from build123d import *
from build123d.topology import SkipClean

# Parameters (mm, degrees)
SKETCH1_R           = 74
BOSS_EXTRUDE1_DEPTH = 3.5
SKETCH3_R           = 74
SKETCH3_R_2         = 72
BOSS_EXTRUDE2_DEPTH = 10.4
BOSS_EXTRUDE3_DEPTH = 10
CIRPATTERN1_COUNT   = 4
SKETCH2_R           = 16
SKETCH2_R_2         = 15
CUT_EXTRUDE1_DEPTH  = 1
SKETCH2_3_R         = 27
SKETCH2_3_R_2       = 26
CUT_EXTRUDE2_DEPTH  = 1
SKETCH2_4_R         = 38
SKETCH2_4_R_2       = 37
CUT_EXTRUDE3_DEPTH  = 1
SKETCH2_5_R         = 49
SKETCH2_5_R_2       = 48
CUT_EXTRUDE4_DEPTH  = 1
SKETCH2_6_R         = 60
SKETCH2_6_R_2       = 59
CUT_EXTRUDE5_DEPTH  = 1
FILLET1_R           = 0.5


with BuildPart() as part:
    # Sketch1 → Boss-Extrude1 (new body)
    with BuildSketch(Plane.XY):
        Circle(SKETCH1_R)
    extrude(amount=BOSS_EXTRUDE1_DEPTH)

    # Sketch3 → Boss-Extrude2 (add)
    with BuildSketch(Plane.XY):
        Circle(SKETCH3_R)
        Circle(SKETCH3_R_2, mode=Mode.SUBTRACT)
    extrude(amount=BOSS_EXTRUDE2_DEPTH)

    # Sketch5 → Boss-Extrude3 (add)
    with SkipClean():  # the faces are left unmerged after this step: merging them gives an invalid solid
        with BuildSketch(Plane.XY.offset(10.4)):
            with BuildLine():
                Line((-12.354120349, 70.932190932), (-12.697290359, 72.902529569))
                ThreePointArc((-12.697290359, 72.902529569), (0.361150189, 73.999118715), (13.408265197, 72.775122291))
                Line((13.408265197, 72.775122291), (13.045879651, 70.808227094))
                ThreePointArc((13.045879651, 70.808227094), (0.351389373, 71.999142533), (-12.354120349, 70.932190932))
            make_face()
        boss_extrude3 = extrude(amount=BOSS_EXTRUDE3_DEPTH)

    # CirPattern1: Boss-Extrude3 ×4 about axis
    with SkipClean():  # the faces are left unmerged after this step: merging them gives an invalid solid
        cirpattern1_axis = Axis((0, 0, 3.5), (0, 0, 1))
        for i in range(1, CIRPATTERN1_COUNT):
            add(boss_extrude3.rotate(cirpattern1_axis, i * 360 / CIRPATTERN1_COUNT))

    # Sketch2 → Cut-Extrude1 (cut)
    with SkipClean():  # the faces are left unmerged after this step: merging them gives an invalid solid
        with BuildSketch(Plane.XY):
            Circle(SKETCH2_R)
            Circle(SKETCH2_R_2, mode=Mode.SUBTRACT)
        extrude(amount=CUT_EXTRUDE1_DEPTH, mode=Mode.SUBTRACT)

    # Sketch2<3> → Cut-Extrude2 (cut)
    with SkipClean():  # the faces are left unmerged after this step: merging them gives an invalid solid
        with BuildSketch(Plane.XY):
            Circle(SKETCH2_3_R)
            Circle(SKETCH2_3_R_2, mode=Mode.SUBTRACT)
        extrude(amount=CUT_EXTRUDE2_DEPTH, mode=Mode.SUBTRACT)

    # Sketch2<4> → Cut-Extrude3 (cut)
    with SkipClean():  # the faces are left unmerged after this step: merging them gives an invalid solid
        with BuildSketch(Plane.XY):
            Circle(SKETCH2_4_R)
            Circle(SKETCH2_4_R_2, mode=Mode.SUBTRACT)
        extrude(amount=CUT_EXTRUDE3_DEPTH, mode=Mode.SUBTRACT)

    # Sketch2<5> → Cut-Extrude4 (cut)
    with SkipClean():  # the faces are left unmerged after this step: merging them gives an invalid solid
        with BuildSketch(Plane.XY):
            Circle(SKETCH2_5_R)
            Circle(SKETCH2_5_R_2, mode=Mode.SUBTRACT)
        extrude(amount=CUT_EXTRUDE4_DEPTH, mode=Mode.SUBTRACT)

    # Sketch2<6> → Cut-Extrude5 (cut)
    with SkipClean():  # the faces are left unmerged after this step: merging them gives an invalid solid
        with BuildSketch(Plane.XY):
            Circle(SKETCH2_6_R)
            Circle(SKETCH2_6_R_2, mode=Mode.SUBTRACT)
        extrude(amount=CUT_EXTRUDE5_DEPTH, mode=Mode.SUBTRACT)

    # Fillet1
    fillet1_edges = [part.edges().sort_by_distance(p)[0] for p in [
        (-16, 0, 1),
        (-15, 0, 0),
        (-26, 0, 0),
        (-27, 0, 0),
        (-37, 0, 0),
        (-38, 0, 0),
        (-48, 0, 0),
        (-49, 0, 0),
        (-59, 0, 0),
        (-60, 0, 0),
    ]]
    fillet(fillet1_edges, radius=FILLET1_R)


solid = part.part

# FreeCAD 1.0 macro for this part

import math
import FreeCAD as App
import Part
import Sketcher
from FreeCAD import Vector
Q = App.Units.Quantity


def edges_at(feature, points):
    """Names of the edges that pass closest to the given points."""
    edges = feature.Shape.Edges
    near = lambda p: min(range(len(edges)), key=lambda i: edges[i].distToShape(Part.Vertex(*p))[0])
    return sorted({f"Edge{near(p) + 1}" for p in points})

doc = App.newDocument("Part")
body = doc.addObject("PartDesign::Body", "Body")

# Sketch on XY plane
sketch1 = doc.addObject("Sketcher::SketchObject", "Sketch")
body.addObject(sketch1)
sketch1.AttachmentSupport = (doc.XY_Plane, [""])
sketch1.MapMode = "FlatFace"
sketch1.addGeometry(Part.Circle(Vector(0, 0, 0), Vector(0, 0, 1), 74), False)
sketch1.addConstraint([
    Sketcher.Constraint("Coincident", 0, 3, -1, 1),
    Sketcher.Constraint("Diameter", 0, Q("148 mm")),
])
pad1 = doc.addObject("PartDesign::Pad", "Pad")
body.addObject(pad1)
pad1.Profile = sketch1
pad1.Length = 3.5

# Sketch on XY plane
sketch2 = doc.addObject("Sketcher::SketchObject", "Sketch001")
body.addObject(sketch2)
sketch2.AttachmentSupport = (doc.XY_Plane, [""])
sketch2.MapMode = "FlatFace"
sketch2.addGeometry([
    Part.Circle(Vector(0, 0, 0), Vector(0, 0, 1), 74),
    Part.Circle(Vector(0, 0, 0), Vector(0, 0, 1), 72),
], False)
sketch2.addConstraint([
    Sketcher.Constraint("Coincident", 0, 3, -1, 1),
    Sketcher.Constraint("Coincident", 1, 3, -1, 1),
    Sketcher.Constraint("Diameter", 0, Q("148 mm")),
    Sketcher.Constraint("Diameter", 1, Q("144 mm")),
])
pad2 = doc.addObject("PartDesign::Pad", "Pad001")
body.addObject(pad2)
pad2.Profile = sketch2
pad2.Length = 10.4

# Sketch on XY plane
sketch3 = doc.addObject("Sketcher::SketchObject", "Sketch002")
body.addObject(sketch3)
sketch3.AttachmentSupport = (doc.XY_Plane, [""])
sketch3.MapMode = "FlatFace"
sketch3.AttachmentOffset = App.Placement(Vector(0, 0, 10.4), App.Rotation())
sketch3.addGeometry([
    Part.LineSegment(Vector(-12.69729, 72.90253, 0), Vector(-12.35412, 70.932191, 0)),
    Part.ArcOfCircle(Part.Circle(Vector(0, 0, 0), Vector(0, 0, 1), 72), math.radians(79.560757), math.radians(99.879987)),
    Part.LineSegment(Vector(13.04588, 70.808227, 0), Vector(13.408265, 72.775122, 0)),
    Part.ArcOfCircle(Part.Circle(Vector(0, 0, 0), Vector(0, 0, 1), 74), math.radians(79.560757), math.radians(99.879987)),
], False)
sketch3.addConstraint([
    Sketcher.Constraint("Coincident", 0, 2, 1, 2),
    Sketcher.Constraint("Coincident", 1, 1, 2, 1),
    Sketcher.Constraint("Coincident", 2, 2, 3, 1),
    Sketcher.Constraint("Coincident", 3, 2, 0, 1),
    Sketcher.Constraint("Coincident", 1, 3, -1, 1),
    Sketcher.Constraint("Coincident", 3, 3, -1, 1),
    Sketcher.Constraint("Radius", 1, Q("72 mm")),
    Sketcher.Constraint("Radius", 3, Q("74 mm")),
    Sketcher.Constraint("Angle", 0, Q("-80.120013 deg")),
    Sketcher.Constraint("DistanceX", 0, 2, 1, 1, Q("25.4 mm")),
    Sketcher.Constraint("DistanceX", 0, 2, -1, 1, Q("12.35412 mm")),
    Sketcher.Constraint("DistanceY", 0, 2, 2, 2, Q("1.842931 mm")),
])
pad3 = doc.addObject("PartDesign::Pad", "Pad002")
body.addObject(pad3)
pad3.Profile = sketch3
pad3.Length = 10
doc.recompute()

polarpattern = doc.addObject("PartDesign::PolarPattern", "PolarPattern")
body.addObject(polarpattern)
polarpattern.Originals = [pad3]
polarpattern.Axis = (doc.Z_Axis, [""])
polarpattern.Angle = 360
polarpattern.Occurrences = 4
body.Tip = polarpattern

# Sketch on XY plane
sketch4 = doc.addObject("Sketcher::SketchObject", "Sketch003")
body.addObject(sketch4)
sketch4.AttachmentSupport = (doc.XY_Plane, [""])
sketch4.MapMode = "FlatFace"
sketch4.addGeometry([
    Part.Circle(Vector(0, 0, 0), Vector(0, 0, 1), 16),
    Part.Circle(Vector(0, 0, 0), Vector(0, 0, 1), 15),
], False)
sketch4.addConstraint([
    Sketcher.Constraint("Coincident", 0, 3, -1, 1),
    Sketcher.Constraint("Coincident", 1, 3, -1, 1),
    Sketcher.Constraint("Diameter", 0, Q("32 mm")),
    Sketcher.Constraint("Diameter", 1, Q("30 mm")),
])
pocket1 = doc.addObject("PartDesign::Pocket", "Pocket")
body.addObject(pocket1)
pocket1.Profile = sketch4
pocket1.Length = 1
pocket1.Reversed = True

# Sketch on XY plane
sketch5 = doc.addObject("Sketcher::SketchObject", "Sketch004")
body.addObject(sketch5)
sketch5.AttachmentSupport = (doc.XY_Plane, [""])
sketch5.MapMode = "FlatFace"
sketch5.addGeometry([
    Part.Circle(Vector(0, 0, 0), Vector(0, 0, 1), 27),
    Part.Circle(Vector(0, 0, 0), Vector(0, 0, 1), 26),
], False)
sketch5.addConstraint([
    Sketcher.Constraint("Coincident", 0, 3, -1, 1),
    Sketcher.Constraint("Coincident", 1, 3, -1, 1),
    Sketcher.Constraint("Diameter", 0, Q("54 mm")),
    Sketcher.Constraint("Diameter", 1, Q("52 mm")),
])
pocket2 = doc.addObject("PartDesign::Pocket", "Pocket001")
body.addObject(pocket2)
pocket2.Profile = sketch5
pocket2.Length = 1
pocket2.Reversed = True

# Sketch on XY plane
sketch6 = doc.addObject("Sketcher::SketchObject", "Sketch005")
body.addObject(sketch6)
sketch6.AttachmentSupport = (doc.XY_Plane, [""])
sketch6.MapMode = "FlatFace"
sketch6.addGeometry([
    Part.Circle(Vector(0, 0, 0), Vector(0, 0, 1), 38),
    Part.Circle(Vector(0, 0, 0), Vector(0, 0, 1), 37),
], False)
sketch6.addConstraint([
    Sketcher.Constraint("Coincident", 0, 3, -1, 1),
    Sketcher.Constraint("Coincident", 1, 3, -1, 1),
    Sketcher.Constraint("Diameter", 0, Q("76 mm")),
    Sketcher.Constraint("Diameter", 1, Q("74 mm")),
])
pocket3 = doc.addObject("PartDesign::Pocket", "Pocket002")
body.addObject(pocket3)
pocket3.Profile = sketch6
pocket3.Length = 1
pocket3.Reversed = True

# Sketch on XY plane
sketch7 = doc.addObject("Sketcher::SketchObject", "Sketch006")
body.addObject(sketch7)
sketch7.AttachmentSupport = (doc.XY_Plane, [""])
sketch7.MapMode = "FlatFace"
sketch7.addGeometry([
    Part.Circle(Vector(0, 0, 0), Vector(0, 0, 1), 49),
    Part.Circle(Vector(0, 0, 0), Vector(0, 0, 1), 48),
], False)
sketch7.addConstraint([
    Sketcher.Constraint("Coincident", 0, 3, -1, 1),
    Sketcher.Constraint("Coincident", 1, 3, -1, 1),
    Sketcher.Constraint("Diameter", 0, Q("98 mm")),
    Sketcher.Constraint("Diameter", 1, Q("96 mm")),
])
pocket4 = doc.addObject("PartDesign::Pocket", "Pocket003")
body.addObject(pocket4)
pocket4.Profile = sketch7
pocket4.Length = 1
pocket4.Reversed = True

# Sketch on XY plane
sketch8 = doc.addObject("Sketcher::SketchObject", "Sketch007")
body.addObject(sketch8)
sketch8.AttachmentSupport = (doc.XY_Plane, [""])
sketch8.MapMode = "FlatFace"
sketch8.addGeometry([
    Part.Circle(Vector(0, 0, 0), Vector(0, 0, 1), 60),
    Part.Circle(Vector(0, 0, 0), Vector(0, 0, 1), 59),
], False)
sketch8.addConstraint([
    Sketcher.Constraint("Coincident", 0, 3, -1, 1),
    Sketcher.Constraint("Coincident", 1, 3, -1, 1),
    Sketcher.Constraint("Diameter", 0, Q("120 mm")),
    Sketcher.Constraint("Diameter", 1, Q("118 mm")),
])
pocket5 = doc.addObject("PartDesign::Pocket", "Pocket004")
body.addObject(pocket5)
pocket5.Profile = sketch8
pocket5.Length = 1
pocket5.Reversed = True
doc.recompute()

fillet = doc.addObject("PartDesign::Fillet", "Fillet")
body.addObject(fillet)
fillet.Base = (pocket5, edges_at(pocket5, [
    (-16, 0, 1),
    (-15, 0, 0),
    (-26, 0, 0),
    (-27, 0, 0),
    (-37, 0, 0),
    (-38, 0, 0),
    (-48, 0, 0),
    (-49, 0, 0),
    (-59, 0, 0),
    (-60, 0, 0),
]))
fillet.Radius = 0.5

doc.recompute()
